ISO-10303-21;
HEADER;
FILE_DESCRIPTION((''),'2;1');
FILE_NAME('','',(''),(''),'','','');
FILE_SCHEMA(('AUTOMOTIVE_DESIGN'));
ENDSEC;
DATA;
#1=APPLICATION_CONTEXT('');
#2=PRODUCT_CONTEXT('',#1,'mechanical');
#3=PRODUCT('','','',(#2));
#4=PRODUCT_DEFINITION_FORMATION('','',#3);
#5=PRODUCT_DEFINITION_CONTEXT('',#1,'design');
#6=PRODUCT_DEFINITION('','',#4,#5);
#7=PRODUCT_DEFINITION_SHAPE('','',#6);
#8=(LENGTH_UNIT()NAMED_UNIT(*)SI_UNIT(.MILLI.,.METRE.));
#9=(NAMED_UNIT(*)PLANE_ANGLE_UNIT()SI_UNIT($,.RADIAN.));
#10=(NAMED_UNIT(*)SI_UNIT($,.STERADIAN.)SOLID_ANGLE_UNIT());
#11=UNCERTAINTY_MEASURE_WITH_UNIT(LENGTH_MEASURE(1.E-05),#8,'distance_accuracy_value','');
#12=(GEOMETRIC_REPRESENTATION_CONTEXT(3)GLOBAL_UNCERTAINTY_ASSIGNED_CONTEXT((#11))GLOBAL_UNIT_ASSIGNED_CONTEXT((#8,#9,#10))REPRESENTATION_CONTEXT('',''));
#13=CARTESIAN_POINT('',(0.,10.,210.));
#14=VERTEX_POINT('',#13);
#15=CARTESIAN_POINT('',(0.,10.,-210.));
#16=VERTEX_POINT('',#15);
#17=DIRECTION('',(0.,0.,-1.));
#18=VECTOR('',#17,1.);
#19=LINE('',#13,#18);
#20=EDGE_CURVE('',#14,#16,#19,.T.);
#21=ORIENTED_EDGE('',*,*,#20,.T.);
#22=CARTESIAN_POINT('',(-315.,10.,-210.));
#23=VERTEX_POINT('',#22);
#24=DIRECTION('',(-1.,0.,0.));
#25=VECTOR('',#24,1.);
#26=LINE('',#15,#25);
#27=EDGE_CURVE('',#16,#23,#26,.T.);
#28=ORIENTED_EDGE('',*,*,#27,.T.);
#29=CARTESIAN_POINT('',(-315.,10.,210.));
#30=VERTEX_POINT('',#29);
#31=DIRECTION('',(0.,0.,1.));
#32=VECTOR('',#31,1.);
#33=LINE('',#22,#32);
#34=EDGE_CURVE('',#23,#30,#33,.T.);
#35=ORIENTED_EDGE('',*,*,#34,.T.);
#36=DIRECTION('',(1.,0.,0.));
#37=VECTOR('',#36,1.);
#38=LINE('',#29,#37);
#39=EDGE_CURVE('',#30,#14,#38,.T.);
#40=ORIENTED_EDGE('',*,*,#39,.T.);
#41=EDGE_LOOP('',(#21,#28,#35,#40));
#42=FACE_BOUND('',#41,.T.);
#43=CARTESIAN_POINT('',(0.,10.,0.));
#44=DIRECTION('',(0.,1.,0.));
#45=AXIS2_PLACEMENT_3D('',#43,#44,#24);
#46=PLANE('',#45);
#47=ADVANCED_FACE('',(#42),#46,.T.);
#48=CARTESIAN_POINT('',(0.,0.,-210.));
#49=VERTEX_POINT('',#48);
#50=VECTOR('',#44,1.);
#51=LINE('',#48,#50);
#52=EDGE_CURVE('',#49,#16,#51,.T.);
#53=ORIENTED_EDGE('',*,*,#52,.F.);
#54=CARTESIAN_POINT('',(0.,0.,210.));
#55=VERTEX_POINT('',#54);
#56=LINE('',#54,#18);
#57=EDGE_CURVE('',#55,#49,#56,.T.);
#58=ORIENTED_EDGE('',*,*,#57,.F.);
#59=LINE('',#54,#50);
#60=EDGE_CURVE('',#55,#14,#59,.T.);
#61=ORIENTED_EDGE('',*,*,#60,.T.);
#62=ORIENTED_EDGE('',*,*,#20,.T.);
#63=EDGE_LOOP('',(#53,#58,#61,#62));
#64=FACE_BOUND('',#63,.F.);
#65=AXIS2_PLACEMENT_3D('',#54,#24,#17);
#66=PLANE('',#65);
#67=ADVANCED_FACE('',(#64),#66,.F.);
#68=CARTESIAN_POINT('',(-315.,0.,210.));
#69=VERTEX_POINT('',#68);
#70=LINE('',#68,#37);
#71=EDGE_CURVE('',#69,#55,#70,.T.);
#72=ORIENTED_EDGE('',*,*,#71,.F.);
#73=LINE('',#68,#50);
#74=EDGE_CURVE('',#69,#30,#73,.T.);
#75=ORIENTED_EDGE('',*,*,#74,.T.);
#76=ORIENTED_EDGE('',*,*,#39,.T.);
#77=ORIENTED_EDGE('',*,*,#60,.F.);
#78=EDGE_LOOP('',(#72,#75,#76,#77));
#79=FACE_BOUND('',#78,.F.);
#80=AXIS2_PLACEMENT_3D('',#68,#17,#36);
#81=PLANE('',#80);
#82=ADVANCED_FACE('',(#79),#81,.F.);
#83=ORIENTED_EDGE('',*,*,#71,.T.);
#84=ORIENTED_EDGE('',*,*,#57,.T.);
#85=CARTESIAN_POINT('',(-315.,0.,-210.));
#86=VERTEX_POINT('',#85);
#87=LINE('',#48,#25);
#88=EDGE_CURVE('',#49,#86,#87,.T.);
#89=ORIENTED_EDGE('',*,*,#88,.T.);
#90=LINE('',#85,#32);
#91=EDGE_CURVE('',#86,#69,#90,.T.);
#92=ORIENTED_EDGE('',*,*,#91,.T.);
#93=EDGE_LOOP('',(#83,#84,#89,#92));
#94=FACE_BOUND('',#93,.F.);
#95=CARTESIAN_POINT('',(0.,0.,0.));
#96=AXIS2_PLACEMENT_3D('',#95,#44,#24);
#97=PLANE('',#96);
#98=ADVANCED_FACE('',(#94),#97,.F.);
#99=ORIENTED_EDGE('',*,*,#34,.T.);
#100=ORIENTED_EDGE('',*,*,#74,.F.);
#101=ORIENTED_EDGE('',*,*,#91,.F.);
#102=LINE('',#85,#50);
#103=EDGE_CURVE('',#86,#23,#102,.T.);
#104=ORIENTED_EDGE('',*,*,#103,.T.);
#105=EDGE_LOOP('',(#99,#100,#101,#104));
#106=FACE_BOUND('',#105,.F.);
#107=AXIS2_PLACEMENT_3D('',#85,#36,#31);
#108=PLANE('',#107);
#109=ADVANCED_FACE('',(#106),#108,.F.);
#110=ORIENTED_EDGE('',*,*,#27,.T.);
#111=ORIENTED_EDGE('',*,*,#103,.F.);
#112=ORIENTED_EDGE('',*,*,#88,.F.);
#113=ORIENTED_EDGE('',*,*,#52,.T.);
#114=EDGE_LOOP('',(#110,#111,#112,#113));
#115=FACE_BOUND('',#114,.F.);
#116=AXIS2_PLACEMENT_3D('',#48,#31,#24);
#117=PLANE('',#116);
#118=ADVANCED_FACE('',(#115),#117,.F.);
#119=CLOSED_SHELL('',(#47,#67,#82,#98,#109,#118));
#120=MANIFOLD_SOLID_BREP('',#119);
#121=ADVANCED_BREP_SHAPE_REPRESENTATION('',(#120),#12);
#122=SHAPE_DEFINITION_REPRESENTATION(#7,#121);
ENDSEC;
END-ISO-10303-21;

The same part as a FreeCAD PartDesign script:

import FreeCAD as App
import Part
import Sketcher
from FreeCAD import Vector
Q = App.Units.Quantity

doc = App.newDocument("Part")
params = doc.addObject("Spreadsheet::Sheet", "Params")
for row, (alias, value) in enumerate([
    ("sketch1_width", "315 mm"),
    ("sketch1_height", "420 mm"),
    ("pad1_length", "10 mm"),
], start=1):
    params.set(f"A{row}", alias)
    params.set(f"B{row}", "=" + value)
    params.setAlias(f"B{row}", alias)

body = doc.addObject("PartDesign::Body", "Body")

# Sketch on XZ plane
sketch1 = body.newObject("Sketcher::SketchObject", "Sketch")
sketch1.AttachmentSupport = (doc.getObject("XZ_Plane"), [""])
sketch1.MapMode = "FlatFace"
sketch1.addGeometry(Part.LineSegment(Vector(-315, -210, 0), Vector(-315, 210, 0)), False)
sketch1.addGeometry(Part.LineSegment(Vector(-315, 210, 0), Vector(0, 210, 0)), False)
sketch1.addGeometry(Part.LineSegment(Vector(0, 210, 0), Vector(0, -210, 0)), False)
sketch1.addGeometry(Part.LineSegment(Vector(0, -210, 0), Vector(-315, -210, 0)), False)
sketch1.addConstraint(Sketcher.Constraint("Coincident", 0, 2, 1, 1))
sketch1.addConstraint(Sketcher.Constraint("Coincident", 1, 2, 2, 1))
sketch1.addConstraint(Sketcher.Constraint("Coincident", 2, 2, 3, 1))
sketch1.addConstraint(Sketcher.Constraint("Coincident", 3, 2, 0, 1))
sketch1.addConstraint(Sketcher.Constraint("Vertical", 0))
sketch1.addConstraint(Sketcher.Constraint("Horizontal", 1))
sketch1.addConstraint(Sketcher.Constraint("Vertical", 2))
sketch1.addConstraint(Sketcher.Constraint("Horizontal", 3))
sketch1.addConstraint(Sketcher.Constraint("Symmetric", 1, 2, 2, 2, -1, 1))
sketch1.addConstraint(Sketcher.Constraint("DistanceX", 1, 1, 1, 2, Q("315 mm")))
sketch1.addConstraint(Sketcher.Constraint("DistanceY", 0, 1, 0, 2, Q("420 mm")))
sketch1.setExpression("Constraints[9]", "Params.sketch1_width")
sketch1.setExpression("Constraints[10]", "Params.sketch1_height")
pad1 = body.newObject("PartDesign::Pad", "Pad")
pad1.Profile = sketch1
pad1.setExpression("Length", "Params.pad1_length")
pad1.Reversed = True

doc.recompute()
